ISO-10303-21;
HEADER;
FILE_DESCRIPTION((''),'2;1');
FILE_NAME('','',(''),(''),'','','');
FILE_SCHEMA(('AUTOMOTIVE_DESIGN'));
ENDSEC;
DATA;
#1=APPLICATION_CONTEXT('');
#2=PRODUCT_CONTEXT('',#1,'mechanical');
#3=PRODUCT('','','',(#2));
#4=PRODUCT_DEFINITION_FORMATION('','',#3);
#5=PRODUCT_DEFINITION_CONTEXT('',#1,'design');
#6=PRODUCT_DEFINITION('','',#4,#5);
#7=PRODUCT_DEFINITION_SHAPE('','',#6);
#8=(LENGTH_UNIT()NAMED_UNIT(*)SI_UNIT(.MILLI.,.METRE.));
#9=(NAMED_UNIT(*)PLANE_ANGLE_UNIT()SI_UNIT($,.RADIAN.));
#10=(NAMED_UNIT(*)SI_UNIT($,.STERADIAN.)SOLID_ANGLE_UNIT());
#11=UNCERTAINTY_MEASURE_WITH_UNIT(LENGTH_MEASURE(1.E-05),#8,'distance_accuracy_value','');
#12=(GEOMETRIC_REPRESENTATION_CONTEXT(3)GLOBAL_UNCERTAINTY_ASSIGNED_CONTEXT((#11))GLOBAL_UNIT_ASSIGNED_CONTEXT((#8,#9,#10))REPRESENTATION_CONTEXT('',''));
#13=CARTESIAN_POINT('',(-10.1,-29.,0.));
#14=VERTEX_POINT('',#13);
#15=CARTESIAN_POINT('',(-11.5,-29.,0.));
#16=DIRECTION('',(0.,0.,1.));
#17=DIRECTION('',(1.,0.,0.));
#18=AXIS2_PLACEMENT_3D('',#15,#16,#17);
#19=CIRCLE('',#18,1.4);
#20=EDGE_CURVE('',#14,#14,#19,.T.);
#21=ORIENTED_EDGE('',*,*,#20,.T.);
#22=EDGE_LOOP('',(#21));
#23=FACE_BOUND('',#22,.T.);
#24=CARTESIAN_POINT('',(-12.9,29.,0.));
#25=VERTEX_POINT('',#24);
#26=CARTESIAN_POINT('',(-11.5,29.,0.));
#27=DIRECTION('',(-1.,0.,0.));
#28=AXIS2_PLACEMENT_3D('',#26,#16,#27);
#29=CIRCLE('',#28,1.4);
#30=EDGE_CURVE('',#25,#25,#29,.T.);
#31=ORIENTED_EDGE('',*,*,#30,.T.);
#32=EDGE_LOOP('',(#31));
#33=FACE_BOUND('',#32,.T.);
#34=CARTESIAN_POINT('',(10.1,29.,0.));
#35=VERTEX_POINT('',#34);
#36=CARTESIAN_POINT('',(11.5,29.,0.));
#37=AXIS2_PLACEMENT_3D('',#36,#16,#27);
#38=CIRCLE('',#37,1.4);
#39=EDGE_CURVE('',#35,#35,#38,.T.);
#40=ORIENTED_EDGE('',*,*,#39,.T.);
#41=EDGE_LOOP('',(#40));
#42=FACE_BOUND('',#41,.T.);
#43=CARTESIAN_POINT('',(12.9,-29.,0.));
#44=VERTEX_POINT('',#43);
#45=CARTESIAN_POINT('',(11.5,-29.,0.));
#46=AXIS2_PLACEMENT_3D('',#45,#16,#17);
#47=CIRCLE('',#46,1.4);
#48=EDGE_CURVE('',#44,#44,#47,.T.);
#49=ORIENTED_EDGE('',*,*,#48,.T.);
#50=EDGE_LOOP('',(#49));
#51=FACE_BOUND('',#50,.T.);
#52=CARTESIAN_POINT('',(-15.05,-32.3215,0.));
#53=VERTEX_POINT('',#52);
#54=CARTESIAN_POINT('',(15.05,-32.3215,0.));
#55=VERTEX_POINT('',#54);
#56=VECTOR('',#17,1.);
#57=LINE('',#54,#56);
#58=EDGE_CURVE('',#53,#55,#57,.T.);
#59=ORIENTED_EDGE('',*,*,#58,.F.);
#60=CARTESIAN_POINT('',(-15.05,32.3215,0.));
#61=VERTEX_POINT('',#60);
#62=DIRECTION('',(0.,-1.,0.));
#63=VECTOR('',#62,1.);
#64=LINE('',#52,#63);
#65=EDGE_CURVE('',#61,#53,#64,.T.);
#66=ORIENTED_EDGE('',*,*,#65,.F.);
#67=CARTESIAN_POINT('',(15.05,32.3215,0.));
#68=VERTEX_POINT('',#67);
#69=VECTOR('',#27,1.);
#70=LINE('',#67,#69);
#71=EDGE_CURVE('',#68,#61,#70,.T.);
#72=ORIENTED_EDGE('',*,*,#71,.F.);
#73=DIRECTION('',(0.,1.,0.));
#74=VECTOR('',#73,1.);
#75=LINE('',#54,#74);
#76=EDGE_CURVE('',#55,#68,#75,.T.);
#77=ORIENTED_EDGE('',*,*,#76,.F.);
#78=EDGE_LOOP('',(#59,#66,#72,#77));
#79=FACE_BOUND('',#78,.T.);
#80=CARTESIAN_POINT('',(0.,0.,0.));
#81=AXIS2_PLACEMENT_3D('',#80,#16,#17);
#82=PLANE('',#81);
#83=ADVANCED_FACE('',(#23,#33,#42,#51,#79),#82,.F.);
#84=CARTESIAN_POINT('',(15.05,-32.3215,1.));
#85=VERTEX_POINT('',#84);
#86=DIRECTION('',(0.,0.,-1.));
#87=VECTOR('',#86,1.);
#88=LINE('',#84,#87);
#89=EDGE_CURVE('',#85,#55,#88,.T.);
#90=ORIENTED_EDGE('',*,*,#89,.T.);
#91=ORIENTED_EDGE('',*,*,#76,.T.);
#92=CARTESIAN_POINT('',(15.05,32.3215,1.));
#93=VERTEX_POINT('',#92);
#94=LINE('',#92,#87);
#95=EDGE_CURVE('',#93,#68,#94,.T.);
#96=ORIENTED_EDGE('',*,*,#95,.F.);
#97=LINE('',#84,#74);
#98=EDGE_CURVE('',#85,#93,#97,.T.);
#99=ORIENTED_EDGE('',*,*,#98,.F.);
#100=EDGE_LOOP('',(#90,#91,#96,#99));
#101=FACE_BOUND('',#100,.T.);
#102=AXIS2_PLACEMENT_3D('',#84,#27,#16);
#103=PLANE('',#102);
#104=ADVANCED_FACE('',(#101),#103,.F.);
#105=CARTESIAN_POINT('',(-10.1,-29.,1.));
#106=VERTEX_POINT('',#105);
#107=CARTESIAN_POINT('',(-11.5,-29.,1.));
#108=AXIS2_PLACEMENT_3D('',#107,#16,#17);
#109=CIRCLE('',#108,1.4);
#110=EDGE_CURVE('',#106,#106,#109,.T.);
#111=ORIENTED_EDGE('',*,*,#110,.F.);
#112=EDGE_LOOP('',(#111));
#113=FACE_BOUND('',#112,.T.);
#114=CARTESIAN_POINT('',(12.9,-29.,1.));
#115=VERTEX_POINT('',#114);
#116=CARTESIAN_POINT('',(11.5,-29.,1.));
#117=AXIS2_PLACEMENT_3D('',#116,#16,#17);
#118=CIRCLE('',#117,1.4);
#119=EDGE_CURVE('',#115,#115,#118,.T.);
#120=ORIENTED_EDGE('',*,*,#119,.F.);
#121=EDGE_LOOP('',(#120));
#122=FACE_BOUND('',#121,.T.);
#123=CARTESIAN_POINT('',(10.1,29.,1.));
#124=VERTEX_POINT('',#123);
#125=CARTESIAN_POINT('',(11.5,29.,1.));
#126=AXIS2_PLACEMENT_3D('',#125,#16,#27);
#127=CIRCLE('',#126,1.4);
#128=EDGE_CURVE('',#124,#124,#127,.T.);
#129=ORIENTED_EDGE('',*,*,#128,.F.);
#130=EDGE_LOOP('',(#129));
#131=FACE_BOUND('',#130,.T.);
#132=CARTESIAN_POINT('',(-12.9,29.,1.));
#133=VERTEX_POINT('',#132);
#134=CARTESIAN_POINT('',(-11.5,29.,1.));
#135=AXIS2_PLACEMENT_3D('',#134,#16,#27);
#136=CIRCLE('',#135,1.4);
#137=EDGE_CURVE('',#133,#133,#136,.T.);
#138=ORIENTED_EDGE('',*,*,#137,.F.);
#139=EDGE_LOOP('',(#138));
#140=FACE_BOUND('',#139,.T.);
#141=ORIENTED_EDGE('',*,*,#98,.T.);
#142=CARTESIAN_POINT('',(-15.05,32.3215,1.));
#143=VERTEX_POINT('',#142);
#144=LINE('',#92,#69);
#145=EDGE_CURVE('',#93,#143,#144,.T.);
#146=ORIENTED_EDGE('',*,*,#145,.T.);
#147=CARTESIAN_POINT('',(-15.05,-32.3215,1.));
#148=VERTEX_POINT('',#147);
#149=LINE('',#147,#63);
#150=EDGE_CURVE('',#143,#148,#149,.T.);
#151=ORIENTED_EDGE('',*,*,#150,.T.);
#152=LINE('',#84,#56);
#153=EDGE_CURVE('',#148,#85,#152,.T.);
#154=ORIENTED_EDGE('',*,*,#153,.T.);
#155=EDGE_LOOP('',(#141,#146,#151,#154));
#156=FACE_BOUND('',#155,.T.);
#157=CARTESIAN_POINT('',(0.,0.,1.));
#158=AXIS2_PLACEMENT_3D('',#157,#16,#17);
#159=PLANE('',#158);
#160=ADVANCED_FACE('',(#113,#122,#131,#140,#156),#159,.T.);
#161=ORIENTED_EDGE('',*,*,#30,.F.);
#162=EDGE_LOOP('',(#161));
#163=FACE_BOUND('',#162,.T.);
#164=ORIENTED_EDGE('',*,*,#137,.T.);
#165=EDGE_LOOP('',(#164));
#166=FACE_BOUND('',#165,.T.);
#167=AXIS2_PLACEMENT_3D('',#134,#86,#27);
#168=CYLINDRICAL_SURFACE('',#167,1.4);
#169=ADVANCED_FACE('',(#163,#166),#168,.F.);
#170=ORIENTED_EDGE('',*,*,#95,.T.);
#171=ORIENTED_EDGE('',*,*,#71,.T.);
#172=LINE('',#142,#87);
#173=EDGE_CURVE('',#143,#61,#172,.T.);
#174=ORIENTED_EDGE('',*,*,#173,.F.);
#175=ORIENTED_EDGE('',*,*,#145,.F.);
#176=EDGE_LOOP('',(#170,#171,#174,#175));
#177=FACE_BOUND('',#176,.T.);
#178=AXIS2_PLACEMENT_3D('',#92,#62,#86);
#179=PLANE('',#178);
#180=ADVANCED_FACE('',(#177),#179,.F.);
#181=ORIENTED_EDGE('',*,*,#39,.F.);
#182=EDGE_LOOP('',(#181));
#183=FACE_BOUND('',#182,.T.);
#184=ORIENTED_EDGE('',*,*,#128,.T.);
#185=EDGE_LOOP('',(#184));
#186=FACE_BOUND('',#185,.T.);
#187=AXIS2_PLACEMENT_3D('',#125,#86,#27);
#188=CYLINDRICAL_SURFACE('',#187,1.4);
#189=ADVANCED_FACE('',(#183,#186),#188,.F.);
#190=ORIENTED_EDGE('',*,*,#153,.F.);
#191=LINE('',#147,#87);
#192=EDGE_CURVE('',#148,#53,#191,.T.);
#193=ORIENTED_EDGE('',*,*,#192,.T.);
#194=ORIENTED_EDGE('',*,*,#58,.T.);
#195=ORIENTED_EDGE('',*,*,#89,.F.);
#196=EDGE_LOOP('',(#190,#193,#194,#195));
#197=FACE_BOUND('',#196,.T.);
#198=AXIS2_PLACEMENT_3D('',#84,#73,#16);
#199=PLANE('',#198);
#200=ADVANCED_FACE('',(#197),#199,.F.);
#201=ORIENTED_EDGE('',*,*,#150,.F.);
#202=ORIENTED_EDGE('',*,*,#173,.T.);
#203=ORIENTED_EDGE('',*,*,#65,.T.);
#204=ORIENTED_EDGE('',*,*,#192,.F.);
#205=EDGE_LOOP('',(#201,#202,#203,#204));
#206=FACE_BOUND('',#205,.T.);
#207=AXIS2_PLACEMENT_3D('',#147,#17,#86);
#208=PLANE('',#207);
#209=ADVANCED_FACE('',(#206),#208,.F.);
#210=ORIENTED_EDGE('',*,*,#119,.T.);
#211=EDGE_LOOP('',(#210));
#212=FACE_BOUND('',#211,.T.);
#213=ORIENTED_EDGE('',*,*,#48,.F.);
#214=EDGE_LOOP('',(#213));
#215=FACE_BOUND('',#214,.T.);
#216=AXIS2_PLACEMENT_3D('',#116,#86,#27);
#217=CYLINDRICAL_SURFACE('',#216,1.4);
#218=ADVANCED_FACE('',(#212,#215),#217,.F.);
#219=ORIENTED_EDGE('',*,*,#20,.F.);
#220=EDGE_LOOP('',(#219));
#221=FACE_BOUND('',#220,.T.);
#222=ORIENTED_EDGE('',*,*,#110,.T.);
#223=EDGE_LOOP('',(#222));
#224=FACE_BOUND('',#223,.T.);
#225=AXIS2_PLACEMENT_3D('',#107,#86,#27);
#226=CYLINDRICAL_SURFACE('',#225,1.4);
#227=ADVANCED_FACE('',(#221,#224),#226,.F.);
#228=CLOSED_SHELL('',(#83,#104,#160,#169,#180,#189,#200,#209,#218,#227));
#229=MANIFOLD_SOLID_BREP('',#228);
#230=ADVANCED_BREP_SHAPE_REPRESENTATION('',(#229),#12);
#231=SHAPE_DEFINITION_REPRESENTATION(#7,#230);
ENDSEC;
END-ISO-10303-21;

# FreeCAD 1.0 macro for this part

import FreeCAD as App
import Part
import Sketcher

V = App.Vector
Q = App.Units.Quantity


def add_polygon(sketch, points):
    """Adds a closed chain of lines whose ends are joined by coincident constraints."""
    first, n = sketch.GeometryCount, len(points)
    for a, b in zip(points, points[1:] + points[:1]):
        sketch.addGeometry(Part.LineSegment(App.Vector(*a, 0), App.Vector(*b, 0)), False)
    for i in range(n):
        sketch.addConstraint(Sketcher.Constraint("Coincident", first + i, 2, first + (i + 1) % n, 1))

doc = App.newDocument("Part")
body = doc.addObject("PartDesign::Body", "Body")

sketch1 = body.newObject("Sketcher::SketchObject", "Sketch")
sketch1.AttachmentSupport = (doc.getObject("XY_Plane"), [""])
sketch1.MapMode = "FlatFace"
add_polygon(sketch1, [(-15.1, 32.3), (-15.1, -32.3), (15.1, -32.3), (15.1, 32.3)])
sketch1.addGeometry(Part.Circle(V(-11.5, -29, 0), V(0, 0, 1), 1.4), False)
sketch1.addGeometry(Part.Circle(V(11.5, -29, 0), V(0, 0, 1), 1.4), False)
sketch1.addGeometry(Part.Circle(V(-11.5, 29, 0), V(0, 0, 1), 1.4), False)
sketch1.addGeometry(Part.Circle(V(11.5, 29, 0), V(0, 0, 1), 1.4), False)
sketch1.addConstraint([
    Sketcher.Constraint("Vertical", 0),
    Sketcher.Constraint("Horizontal", 1),
    Sketcher.Constraint("Vertical", 2),
    Sketcher.Constraint("Horizontal", 3),
    Sketcher.Constraint("Equal", 4, 5),
    Sketcher.Constraint("Equal", 5, 6),
    Sketcher.Constraint("Equal", 6, 7),
    Sketcher.Constraint("Symmetric", 5, 3, 6, 3, -1, 1),
    Sketcher.Constraint("Symmetric", 4, 3, 7, 3, -1, 1),
    Sketcher.Constraint("Symmetric", 0, 2, 2, 2, -1, 1),
    Sketcher.Constraint("Symmetric", 4, 3, 5, 3, -2),
    Sketcher.Constraint("Diameter", 4, Q("2.8 mm")),
    Sketcher.Constraint("DistanceX", 1, 1, 1, 2, Q("30.1 mm")),
    Sketcher.Constraint("DistanceY", 4, 3, -1, 1, Q("29 mm")),
    Sketcher.Constraint("DistanceX", 4, 3, 5, 3, Q("23 mm")),
    Sketcher.Constraint("DistanceY", 0, 2, 0, 1, Q("64.643 mm")),
])
pad1 = body.newObject("PartDesign::Pad", "Pad")
pad1.Profile = sketch1
pad1.Length = 1

doc.recompute()
